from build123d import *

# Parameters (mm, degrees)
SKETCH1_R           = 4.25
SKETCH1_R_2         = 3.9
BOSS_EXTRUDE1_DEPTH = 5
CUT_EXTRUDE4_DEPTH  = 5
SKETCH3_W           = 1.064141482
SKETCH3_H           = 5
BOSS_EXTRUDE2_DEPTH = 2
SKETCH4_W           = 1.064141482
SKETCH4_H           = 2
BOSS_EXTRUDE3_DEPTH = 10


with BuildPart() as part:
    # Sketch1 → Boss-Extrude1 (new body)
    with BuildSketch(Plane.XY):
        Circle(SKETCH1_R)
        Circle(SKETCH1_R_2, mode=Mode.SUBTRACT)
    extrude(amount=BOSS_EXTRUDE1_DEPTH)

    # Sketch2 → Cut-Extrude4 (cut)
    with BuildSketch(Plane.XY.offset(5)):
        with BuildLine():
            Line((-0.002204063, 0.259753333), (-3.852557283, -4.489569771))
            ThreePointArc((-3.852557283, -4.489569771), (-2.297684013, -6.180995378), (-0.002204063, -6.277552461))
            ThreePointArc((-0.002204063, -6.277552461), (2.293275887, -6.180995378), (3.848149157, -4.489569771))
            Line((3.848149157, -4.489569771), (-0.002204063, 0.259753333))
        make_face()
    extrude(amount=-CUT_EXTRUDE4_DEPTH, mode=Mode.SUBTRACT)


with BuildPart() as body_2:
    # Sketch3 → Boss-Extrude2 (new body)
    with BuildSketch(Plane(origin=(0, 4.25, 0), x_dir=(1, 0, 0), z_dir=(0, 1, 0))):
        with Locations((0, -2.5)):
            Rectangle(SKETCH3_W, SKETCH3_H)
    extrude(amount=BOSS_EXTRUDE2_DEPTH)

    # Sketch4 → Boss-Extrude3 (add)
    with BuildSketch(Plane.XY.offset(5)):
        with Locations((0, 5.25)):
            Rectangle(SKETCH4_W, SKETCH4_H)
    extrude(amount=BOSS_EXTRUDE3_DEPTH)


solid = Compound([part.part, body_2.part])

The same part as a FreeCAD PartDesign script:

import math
import FreeCAD as App
import Part
import Sketcher
from FreeCAD import Vector


def add_polygon(sketch, points):
    """Adds a closed chain of lines whose ends are joined by coincident constraints."""
    first, n = sketch.GeometryCount, len(points)
    for a, b in zip(points, points[1:] + points[:1]):
        sketch.addGeometry(Part.LineSegment(App.Vector(*a, 0), App.Vector(*b, 0)), False)
    for i in range(n):
        sketch.addConstraint(Sketcher.Constraint("Coincident", first + i, 2, first + (i + 1) % n, 1))

doc = App.newDocument("Part")
body = doc.addObject("PartDesign::Body", "Body")

# Sketch on XY plane
sketch1 = doc.addObject("Sketcher::SketchObject", "Sketch")
body.addObject(sketch1)
sketch1.AttachmentSupport = (doc.XY_Plane, [""])
sketch1.MapMode = "FlatFace"
sketch1.addGeometry([
    Part.Circle(Vector(0, 0, 0), Vector(0, 0, 1), 4.2),
    Part.Circle(Vector(0, 0, 0), Vector(0, 0, 1), 3.9),
], False)
sketch1.addConstraint([
    Sketcher.Constraint("Coincident", 0, 3, -1, 1),
    Sketcher.Constraint("Coincident", 1, 3, -1, 1),
    Sketcher.Constraint("Diameter", 0, 8.5),
    Sketcher.Constraint("Diameter", 1, 7.8),
])
pad1 = doc.addObject("PartDesign::Pad", "Pad")
body.addObject(pad1)
pad1.Profile = sketch1
pad1.Length = 5

# Sketch on XY plane
sketch2 = doc.addObject("Sketcher::SketchObject", "Sketch001")
body.addObject(sketch2)
sketch2.AttachmentSupport = (doc.XY_Plane, [""])
sketch2.MapMode = "FlatFace"
sketch2.AttachmentOffset = App.Placement(Vector(0, 0, 5), App.Rotation())
sketch2.addGeometry([
    Part.LineSegment(Vector(0, 0.3, 0), Vector(-3.9, -4.5, 0)),
    Part.ArcOfCircle(Part.Circle(Vector(-1, -3.5, 0), Vector(0, 0, 1), 3), math.radians(-160), math.radians(-70)),
    Part.ArcOfCircle(Part.Circle(Vector(1, -3.5, 0), Vector(0, 0, 1), 3), math.radians(-110), math.radians(-20)),
    Part.LineSegment(Vector(3.8, -4.5, 0), Vector(0, 0.3, 0)),
], False)
sketch2.addConstraint([
    Sketcher.Constraint("Coincident", 0, 2, 1, 1),
    Sketcher.Constraint("Coincident", 1, 2, 2, 1),
    Sketcher.Constraint("Coincident", 2, 2, 3, 1),
    Sketcher.Constraint("Coincident", 3, 2, 0, 1),
    Sketcher.Constraint("Equal", 1, 2),
    Sketcher.Constraint("Horizontal", 1, 3, 2, 3),
    Sketcher.Constraint("Horizontal", 0, 2, 2, 2),
    Sketcher.Constraint("Vertical", 1, 2, 3, 2),
    Sketcher.Constraint("Radius", 1, 3.001841),
    Sketcher.Constraint("DistanceX", 1, 3, -1, 1, 1.033389),
    Sketcher.Constraint("DistanceX", -1, 1, 2, 3, 1.028981),
    Sketcher.Constraint("DistanceY", 0, 2, -1, 1, 4.48957),
    Sketcher.Constraint("DistanceX", -1, 1, 2, 2, 3.848149),
    Sketcher.Constraint("Distance", 0, 6.114024),
])
pocket1 = doc.addObject("PartDesign::Pocket", "Pocket")
body.addObject(pocket1)
pocket1.Profile = sketch2
pocket1.Length = 5
body2 = doc.addObject("PartDesign::Body", "Body001")

# Sketch on XZ plane
sketch3 = doc.addObject("Sketcher::SketchObject", "Sketch002")
body2.addObject(sketch3)
sketch3.AttachmentSupport = (doc.getObject("XZ_Plane001"), [""])
sketch3.MapMode = "FlatFace"
sketch3.AttachmentOffset = App.Placement(Vector(0, 0, -4.25), App.Rotation())
add_polygon(sketch3, [(-0.5, 0), (-0.5, 5), (0.5, 5), (0.5, 0)])  # lines 0-3
sketch3.addConstraint([
    Sketcher.Constraint("Vertical", 0),
    Sketcher.Constraint("Horizontal", 1),
    Sketcher.Constraint("Vertical", 2),
    Sketcher.Constraint("Horizontal", 3),
    Sketcher.Constraint("Symmetric", 2, 2, 3, 2, -1, 1),
    Sketcher.Constraint("DistanceY", 0, 1, 0, 2, 5.0),
    Sketcher.Constraint("DistanceX", 1, 1, 1, 2, 1.064141),
])
pad2 = doc.addObject("PartDesign::Pad", "Pad001")
body2.addObject(pad2)
pad2.Profile = sketch3
pad2.Length = 2
pad2.Reversed = True

# Sketch on XY plane
sketch4 = doc.addObject("Sketcher::SketchObject", "Sketch003")
body2.addObject(sketch4)
sketch4.AttachmentSupport = (doc.getObject("XY_Plane001"), [""])
sketch4.MapMode = "FlatFace"
sketch4.AttachmentOffset = App.Placement(Vector(0, 0, 5), App.Rotation())
add_polygon(sketch4, [(-0.5, 6.2), (-0.5, 4.2), (0.5, 4.2), (0.5, 6.2)])  # lines 0-3
sketch4.addConstraint([
    Sketcher.Constraint("Vertical", 0),
    Sketcher.Constraint("Horizontal", 1),
    Sketcher.Constraint("Vertical", 2),
    Sketcher.Constraint("Horizontal", 3),
    Sketcher.Constraint("DistanceY", 0, 2, 0, 1, 2.0),
    Sketcher.Constraint("DistanceY", -1, 1, 0, 2, 4.25),
    Sketcher.Constraint("DistanceX", 1, 1, 1, 2, 1.064141),
    Sketcher.Constraint("DistanceX", 0, 2, -1, 1, 0.532071),
])
pad3 = doc.addObject("PartDesign::Pad", "Pad002")
body2.addObject(pad3)
pad3.Profile = sketch4
pad3.Length = 10

doc.recompute()
